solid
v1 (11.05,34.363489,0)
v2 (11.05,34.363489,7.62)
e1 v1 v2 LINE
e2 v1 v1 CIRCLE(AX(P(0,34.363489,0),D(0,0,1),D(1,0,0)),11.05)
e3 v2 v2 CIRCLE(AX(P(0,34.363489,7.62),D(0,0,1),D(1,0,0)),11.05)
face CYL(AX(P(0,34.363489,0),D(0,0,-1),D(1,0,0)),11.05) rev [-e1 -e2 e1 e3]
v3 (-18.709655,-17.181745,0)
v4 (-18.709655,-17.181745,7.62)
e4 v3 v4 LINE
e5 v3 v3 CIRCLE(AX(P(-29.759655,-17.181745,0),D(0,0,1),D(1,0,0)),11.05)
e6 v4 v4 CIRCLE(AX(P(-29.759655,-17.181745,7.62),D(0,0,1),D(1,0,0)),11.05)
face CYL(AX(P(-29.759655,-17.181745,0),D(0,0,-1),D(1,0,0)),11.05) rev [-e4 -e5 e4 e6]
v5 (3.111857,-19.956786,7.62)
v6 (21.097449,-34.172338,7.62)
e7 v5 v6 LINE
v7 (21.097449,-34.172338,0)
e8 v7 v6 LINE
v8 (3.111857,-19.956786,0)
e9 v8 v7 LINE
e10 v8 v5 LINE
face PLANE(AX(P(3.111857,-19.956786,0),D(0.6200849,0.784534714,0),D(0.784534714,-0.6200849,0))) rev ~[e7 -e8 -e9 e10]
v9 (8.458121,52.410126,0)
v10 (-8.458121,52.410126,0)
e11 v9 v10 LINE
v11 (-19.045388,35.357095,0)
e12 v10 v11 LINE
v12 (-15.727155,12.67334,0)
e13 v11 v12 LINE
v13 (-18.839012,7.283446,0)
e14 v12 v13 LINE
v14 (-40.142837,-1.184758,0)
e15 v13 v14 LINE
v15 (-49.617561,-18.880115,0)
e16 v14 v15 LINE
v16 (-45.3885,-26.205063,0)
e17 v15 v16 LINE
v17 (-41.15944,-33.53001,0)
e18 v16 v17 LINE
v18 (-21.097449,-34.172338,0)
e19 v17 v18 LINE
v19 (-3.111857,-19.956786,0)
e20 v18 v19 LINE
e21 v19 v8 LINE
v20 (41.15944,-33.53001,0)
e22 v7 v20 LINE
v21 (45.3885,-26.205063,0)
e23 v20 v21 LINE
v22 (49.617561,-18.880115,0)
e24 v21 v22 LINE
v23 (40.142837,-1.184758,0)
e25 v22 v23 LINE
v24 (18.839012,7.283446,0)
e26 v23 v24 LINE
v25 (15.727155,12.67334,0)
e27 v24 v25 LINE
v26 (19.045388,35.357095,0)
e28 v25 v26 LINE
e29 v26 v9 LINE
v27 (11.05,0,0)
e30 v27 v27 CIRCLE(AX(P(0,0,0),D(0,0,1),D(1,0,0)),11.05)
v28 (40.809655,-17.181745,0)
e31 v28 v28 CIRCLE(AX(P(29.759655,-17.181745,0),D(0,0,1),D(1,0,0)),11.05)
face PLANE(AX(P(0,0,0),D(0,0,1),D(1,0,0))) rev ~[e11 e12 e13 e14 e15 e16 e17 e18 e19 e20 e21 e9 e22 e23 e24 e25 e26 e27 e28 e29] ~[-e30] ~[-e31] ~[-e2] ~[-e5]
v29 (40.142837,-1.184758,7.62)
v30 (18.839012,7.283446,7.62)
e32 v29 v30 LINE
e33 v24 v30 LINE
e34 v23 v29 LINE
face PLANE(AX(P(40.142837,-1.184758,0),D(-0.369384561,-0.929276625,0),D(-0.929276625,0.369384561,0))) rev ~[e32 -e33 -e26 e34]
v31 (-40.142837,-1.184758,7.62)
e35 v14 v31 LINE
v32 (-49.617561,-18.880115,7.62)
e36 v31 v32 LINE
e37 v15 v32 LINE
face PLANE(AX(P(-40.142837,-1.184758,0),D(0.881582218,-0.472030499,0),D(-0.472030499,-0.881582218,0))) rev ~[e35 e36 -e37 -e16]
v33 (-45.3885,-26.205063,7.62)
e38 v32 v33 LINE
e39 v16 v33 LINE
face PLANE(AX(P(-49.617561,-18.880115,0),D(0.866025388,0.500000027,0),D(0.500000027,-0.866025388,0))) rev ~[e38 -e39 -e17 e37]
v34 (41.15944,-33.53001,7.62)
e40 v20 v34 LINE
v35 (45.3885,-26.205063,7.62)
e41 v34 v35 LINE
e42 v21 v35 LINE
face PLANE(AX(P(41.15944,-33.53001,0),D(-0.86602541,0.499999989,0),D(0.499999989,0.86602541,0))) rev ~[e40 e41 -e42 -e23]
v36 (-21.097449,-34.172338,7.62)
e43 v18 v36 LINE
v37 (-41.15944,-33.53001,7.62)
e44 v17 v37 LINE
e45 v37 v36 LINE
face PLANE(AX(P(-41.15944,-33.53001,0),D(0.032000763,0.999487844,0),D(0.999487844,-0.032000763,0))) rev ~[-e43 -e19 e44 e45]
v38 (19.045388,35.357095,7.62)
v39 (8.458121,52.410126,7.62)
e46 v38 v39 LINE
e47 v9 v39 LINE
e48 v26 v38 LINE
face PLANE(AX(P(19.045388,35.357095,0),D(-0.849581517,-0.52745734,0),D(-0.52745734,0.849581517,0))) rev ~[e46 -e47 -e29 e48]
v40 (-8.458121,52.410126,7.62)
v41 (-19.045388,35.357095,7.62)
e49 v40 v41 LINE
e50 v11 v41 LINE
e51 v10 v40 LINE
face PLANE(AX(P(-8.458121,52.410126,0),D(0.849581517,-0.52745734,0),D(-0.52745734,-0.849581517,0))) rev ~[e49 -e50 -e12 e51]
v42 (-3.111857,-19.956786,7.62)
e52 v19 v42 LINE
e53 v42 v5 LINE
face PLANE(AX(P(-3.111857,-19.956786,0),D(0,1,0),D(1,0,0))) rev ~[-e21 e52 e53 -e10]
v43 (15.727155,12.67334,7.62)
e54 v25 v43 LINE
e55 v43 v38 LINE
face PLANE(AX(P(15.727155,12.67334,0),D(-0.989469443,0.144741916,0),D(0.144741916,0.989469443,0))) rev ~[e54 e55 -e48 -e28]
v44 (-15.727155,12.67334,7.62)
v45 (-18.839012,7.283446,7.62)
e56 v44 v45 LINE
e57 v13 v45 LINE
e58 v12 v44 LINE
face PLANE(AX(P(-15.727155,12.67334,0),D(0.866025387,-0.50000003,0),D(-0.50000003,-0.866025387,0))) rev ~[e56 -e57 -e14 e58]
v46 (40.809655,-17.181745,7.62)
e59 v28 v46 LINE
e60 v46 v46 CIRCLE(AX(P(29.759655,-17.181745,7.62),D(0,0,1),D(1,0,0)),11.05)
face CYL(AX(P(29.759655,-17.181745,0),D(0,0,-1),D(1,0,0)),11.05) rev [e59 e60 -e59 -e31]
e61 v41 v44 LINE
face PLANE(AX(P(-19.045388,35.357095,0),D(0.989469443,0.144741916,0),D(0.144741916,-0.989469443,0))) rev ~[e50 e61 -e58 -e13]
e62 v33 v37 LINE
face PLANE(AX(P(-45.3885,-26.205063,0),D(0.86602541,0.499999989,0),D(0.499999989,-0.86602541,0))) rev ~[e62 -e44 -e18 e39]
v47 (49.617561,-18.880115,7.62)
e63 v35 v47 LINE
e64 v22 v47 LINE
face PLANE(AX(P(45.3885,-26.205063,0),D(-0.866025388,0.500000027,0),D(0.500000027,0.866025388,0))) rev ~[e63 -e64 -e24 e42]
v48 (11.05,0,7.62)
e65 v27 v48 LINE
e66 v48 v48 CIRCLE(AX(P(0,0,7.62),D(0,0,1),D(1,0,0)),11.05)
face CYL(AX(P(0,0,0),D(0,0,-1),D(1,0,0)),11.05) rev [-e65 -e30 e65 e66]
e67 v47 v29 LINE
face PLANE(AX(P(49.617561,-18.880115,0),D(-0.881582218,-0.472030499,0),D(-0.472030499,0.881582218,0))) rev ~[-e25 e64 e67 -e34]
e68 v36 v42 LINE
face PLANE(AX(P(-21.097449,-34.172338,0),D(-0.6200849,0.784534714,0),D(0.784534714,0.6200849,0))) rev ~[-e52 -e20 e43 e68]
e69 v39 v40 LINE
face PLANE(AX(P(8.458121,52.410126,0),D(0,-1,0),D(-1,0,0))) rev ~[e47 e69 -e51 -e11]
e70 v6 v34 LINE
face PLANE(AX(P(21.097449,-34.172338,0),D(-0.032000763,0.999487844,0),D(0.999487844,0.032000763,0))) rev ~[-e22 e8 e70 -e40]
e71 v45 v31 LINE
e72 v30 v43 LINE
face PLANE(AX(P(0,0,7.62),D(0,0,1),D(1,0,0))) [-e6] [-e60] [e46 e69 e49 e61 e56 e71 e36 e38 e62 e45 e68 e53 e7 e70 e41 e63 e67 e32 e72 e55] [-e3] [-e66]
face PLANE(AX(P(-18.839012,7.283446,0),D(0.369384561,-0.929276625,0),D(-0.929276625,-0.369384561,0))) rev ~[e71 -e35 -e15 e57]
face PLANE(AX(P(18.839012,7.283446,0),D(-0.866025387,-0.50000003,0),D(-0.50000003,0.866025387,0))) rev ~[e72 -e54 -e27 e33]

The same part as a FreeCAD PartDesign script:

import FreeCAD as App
import Part
import Sketcher
from FreeCAD import Vector


def add_polygon(sketch, points):
    """Adds a closed chain of lines whose ends are joined by coincident constraints."""
    first, n = sketch.GeometryCount, len(points)
    for a, b in zip(points, points[1:] + points[:1]):
        sketch.addGeometry(Part.LineSegment(App.Vector(*a, 0), App.Vector(*b, 0)), False)
    for i in range(n):
        sketch.addConstraint(Sketcher.Constraint("Coincident", first + i, 2, first + (i + 1) % n, 1))

doc = App.newDocument("Part")
body = doc.addObject("PartDesign::Body", "Body")

# Sketch on XY plane
sketch1 = body.newObject("Sketcher::SketchObject", "Sketch")
sketch1.AttachmentSupport = (doc.getObject("XY_Plane"), [""])
sketch1.MapMode = "FlatFace"
add_polygon(sketch1, [(-8.458121, 52.410126), (-19.045388, 35.357095), (-15.727155, 12.67334), (-18.839012, 7.283446), (-40.142837, -1.184758), (-49.617561, -18.880115), (-45.3885, -26.205063), (-41.15944, -33.53001), (-21.097449, -34.172338), (-3.111857, -19.956786), (3.111857, -19.956786), (21.097449, -34.172338), (41.15944, -33.53001), (45.3885, -26.205063), (49.617561, -18.880115), (40.142837, -1.184758), (18.839012, 7.283446), (15.727155, 12.67334), (19.045388, 35.357095), (8.458121, 52.410126)])  # lines 0-19
sketch1.addGeometry(Part.Circle(Vector(-29.759655, -17.181745, 0), Vector(0, 0, 1), 11.05), False)  # 20
sketch1.addGeometry(Part.Circle(Vector(0, 0, 0), Vector(0, 0, 1), 11.05), False)  # 21
sketch1.addGeometry(Part.Circle(Vector(29.759655, -17.181745, 0), Vector(0, 0, 1), 11.05), False)  # 22
sketch1.addGeometry(Part.Circle(Vector(0, 34.363489, 0), Vector(0, 0, 1), 11.05), False)  # 23
sketch1.addConstraint([
    Sketcher.Constraint("Horizontal", 9),
    Sketcher.Constraint("Horizontal", 19),
    Sketcher.Constraint("Coincident", 21, 3, -1, 1),
    Sketcher.Constraint("PointOnObject", 23, 3, -2),
    Sketcher.Constraint("Diameter", 20, 22.1),
    Sketcher.Constraint("Diameter", 21, 22.1),
    Sketcher.Constraint("Diameter", 22, 22.1),
    Sketcher.Constraint("Diameter", 23, 22.1),
    Sketcher.Constraint("DistanceX", 5, 2, -1, 1, 45.3885),
    Sketcher.Constraint("DistanceX", -1, 1, 12, 2, 45.3885),
    Sketcher.Constraint("DistanceX", 20, 3, 1, 2, 14.0325),
    Sketcher.Constraint("DistanceX", 7, 2, 10, 2, 42.194898),
    Sketcher.Constraint("Distance", 0, 20.072272),
    Sketcher.Constraint("Distance", 1, 22.92517),
    Sketcher.Constraint("Distance", 3, 22.92517),
    Sketcher.Constraint("Distance", 4, 20.072271),
    Sketcher.Constraint("Distance", 5, 8.458122),
    Sketcher.Constraint("Distance", 6, 8.45812),
    Sketcher.Constraint("Distance", 7, 20.072271),
    Sketcher.Constraint("Distance", 8, 22.92517),
    Sketcher.Constraint("Distance", 10, 22.92517),
    Sketcher.Constraint("Distance", 11, 20.072271),
    Sketcher.Constraint("Distance", 12, 8.45812),
    Sketcher.Constraint("Distance", 13, 8.458122),
    Sketcher.Constraint("Distance", 14, 20.072271),
    Sketcher.Constraint("Distance", 15, 22.92517),
    Sketcher.Constraint("Distance", 17, 22.92517),
    Sketcher.Constraint("Distance", 18, 20.072272),
    Sketcher.Constraint("DistanceX", 9, 1, 9, 2, 6.223714),
    Sketcher.Constraint("DistanceX", 19, 2, 19, 1, 16.916242),
    Sketcher.Constraint("DistanceY", -1, 1, 23, 3, 34.363489),
    Sketcher.Constraint("DistanceY", -1, 1, 1, 2, 12.67334),
    Sketcher.Constraint("DistanceX", 4, 2, -1, 1, 49.617561),
    Sketcher.Constraint("DistanceX", 6, 2, -1, 1, 41.15944),
    Sketcher.Constraint("DistanceY", 6, 2, -1, 1, 33.53001),
    Sketcher.Constraint("DistanceX", 7, 2, -1, 1, 21.097449),
    Sketcher.Constraint("DistanceY", 10, 2, -1, 1, 34.172338),
    Sketcher.Constraint("DistanceX", -1, 1, 11, 2, 41.15944),
    Sketcher.Constraint("DistanceX", -1, 1, 13, 2, 49.617561),
    Sketcher.Constraint("DistanceY", -1, 1, 16, 2, 12.67334),
    Sketcher.Constraint("DistanceX", -1, 1, 18, 2, 8.458121),
    Sketcher.Constraint("DistanceX", 20, 3, 22, 3, 59.51931),
    Sketcher.Constraint("DistanceY", 20, 3, 0, 2, 52.53884),
    Sketcher.Constraint("DistanceY", 22, 3, 0, 2, 52.53884),
    Sketcher.Constraint("DistanceY", 20, 3, 2, 2, 24.465191),
    Sketcher.Constraint("DistanceX", 3, 2, 0, 2, 21.097449),
    Sketcher.Constraint("DistanceY", 4, 2, 20, 3, 1.69837),
    Sketcher.Constraint("DistanceX", 4, 2, 2, 2, 30.778549),
    Sketcher.Constraint("DistanceY", 11, 2, 14, 2, 32.345252),
    Sketcher.Constraint("DistanceY", 22, 3, 15, 2, 24.465191),
    Sketcher.Constraint("DistanceX", 1, 2, 16, 2, 31.45431),
])
pad1 = body.newObject("PartDesign::Pad", "Pad")
pad1.Profile = sketch1
pad1.Length = 7.62

doc.recompute()
